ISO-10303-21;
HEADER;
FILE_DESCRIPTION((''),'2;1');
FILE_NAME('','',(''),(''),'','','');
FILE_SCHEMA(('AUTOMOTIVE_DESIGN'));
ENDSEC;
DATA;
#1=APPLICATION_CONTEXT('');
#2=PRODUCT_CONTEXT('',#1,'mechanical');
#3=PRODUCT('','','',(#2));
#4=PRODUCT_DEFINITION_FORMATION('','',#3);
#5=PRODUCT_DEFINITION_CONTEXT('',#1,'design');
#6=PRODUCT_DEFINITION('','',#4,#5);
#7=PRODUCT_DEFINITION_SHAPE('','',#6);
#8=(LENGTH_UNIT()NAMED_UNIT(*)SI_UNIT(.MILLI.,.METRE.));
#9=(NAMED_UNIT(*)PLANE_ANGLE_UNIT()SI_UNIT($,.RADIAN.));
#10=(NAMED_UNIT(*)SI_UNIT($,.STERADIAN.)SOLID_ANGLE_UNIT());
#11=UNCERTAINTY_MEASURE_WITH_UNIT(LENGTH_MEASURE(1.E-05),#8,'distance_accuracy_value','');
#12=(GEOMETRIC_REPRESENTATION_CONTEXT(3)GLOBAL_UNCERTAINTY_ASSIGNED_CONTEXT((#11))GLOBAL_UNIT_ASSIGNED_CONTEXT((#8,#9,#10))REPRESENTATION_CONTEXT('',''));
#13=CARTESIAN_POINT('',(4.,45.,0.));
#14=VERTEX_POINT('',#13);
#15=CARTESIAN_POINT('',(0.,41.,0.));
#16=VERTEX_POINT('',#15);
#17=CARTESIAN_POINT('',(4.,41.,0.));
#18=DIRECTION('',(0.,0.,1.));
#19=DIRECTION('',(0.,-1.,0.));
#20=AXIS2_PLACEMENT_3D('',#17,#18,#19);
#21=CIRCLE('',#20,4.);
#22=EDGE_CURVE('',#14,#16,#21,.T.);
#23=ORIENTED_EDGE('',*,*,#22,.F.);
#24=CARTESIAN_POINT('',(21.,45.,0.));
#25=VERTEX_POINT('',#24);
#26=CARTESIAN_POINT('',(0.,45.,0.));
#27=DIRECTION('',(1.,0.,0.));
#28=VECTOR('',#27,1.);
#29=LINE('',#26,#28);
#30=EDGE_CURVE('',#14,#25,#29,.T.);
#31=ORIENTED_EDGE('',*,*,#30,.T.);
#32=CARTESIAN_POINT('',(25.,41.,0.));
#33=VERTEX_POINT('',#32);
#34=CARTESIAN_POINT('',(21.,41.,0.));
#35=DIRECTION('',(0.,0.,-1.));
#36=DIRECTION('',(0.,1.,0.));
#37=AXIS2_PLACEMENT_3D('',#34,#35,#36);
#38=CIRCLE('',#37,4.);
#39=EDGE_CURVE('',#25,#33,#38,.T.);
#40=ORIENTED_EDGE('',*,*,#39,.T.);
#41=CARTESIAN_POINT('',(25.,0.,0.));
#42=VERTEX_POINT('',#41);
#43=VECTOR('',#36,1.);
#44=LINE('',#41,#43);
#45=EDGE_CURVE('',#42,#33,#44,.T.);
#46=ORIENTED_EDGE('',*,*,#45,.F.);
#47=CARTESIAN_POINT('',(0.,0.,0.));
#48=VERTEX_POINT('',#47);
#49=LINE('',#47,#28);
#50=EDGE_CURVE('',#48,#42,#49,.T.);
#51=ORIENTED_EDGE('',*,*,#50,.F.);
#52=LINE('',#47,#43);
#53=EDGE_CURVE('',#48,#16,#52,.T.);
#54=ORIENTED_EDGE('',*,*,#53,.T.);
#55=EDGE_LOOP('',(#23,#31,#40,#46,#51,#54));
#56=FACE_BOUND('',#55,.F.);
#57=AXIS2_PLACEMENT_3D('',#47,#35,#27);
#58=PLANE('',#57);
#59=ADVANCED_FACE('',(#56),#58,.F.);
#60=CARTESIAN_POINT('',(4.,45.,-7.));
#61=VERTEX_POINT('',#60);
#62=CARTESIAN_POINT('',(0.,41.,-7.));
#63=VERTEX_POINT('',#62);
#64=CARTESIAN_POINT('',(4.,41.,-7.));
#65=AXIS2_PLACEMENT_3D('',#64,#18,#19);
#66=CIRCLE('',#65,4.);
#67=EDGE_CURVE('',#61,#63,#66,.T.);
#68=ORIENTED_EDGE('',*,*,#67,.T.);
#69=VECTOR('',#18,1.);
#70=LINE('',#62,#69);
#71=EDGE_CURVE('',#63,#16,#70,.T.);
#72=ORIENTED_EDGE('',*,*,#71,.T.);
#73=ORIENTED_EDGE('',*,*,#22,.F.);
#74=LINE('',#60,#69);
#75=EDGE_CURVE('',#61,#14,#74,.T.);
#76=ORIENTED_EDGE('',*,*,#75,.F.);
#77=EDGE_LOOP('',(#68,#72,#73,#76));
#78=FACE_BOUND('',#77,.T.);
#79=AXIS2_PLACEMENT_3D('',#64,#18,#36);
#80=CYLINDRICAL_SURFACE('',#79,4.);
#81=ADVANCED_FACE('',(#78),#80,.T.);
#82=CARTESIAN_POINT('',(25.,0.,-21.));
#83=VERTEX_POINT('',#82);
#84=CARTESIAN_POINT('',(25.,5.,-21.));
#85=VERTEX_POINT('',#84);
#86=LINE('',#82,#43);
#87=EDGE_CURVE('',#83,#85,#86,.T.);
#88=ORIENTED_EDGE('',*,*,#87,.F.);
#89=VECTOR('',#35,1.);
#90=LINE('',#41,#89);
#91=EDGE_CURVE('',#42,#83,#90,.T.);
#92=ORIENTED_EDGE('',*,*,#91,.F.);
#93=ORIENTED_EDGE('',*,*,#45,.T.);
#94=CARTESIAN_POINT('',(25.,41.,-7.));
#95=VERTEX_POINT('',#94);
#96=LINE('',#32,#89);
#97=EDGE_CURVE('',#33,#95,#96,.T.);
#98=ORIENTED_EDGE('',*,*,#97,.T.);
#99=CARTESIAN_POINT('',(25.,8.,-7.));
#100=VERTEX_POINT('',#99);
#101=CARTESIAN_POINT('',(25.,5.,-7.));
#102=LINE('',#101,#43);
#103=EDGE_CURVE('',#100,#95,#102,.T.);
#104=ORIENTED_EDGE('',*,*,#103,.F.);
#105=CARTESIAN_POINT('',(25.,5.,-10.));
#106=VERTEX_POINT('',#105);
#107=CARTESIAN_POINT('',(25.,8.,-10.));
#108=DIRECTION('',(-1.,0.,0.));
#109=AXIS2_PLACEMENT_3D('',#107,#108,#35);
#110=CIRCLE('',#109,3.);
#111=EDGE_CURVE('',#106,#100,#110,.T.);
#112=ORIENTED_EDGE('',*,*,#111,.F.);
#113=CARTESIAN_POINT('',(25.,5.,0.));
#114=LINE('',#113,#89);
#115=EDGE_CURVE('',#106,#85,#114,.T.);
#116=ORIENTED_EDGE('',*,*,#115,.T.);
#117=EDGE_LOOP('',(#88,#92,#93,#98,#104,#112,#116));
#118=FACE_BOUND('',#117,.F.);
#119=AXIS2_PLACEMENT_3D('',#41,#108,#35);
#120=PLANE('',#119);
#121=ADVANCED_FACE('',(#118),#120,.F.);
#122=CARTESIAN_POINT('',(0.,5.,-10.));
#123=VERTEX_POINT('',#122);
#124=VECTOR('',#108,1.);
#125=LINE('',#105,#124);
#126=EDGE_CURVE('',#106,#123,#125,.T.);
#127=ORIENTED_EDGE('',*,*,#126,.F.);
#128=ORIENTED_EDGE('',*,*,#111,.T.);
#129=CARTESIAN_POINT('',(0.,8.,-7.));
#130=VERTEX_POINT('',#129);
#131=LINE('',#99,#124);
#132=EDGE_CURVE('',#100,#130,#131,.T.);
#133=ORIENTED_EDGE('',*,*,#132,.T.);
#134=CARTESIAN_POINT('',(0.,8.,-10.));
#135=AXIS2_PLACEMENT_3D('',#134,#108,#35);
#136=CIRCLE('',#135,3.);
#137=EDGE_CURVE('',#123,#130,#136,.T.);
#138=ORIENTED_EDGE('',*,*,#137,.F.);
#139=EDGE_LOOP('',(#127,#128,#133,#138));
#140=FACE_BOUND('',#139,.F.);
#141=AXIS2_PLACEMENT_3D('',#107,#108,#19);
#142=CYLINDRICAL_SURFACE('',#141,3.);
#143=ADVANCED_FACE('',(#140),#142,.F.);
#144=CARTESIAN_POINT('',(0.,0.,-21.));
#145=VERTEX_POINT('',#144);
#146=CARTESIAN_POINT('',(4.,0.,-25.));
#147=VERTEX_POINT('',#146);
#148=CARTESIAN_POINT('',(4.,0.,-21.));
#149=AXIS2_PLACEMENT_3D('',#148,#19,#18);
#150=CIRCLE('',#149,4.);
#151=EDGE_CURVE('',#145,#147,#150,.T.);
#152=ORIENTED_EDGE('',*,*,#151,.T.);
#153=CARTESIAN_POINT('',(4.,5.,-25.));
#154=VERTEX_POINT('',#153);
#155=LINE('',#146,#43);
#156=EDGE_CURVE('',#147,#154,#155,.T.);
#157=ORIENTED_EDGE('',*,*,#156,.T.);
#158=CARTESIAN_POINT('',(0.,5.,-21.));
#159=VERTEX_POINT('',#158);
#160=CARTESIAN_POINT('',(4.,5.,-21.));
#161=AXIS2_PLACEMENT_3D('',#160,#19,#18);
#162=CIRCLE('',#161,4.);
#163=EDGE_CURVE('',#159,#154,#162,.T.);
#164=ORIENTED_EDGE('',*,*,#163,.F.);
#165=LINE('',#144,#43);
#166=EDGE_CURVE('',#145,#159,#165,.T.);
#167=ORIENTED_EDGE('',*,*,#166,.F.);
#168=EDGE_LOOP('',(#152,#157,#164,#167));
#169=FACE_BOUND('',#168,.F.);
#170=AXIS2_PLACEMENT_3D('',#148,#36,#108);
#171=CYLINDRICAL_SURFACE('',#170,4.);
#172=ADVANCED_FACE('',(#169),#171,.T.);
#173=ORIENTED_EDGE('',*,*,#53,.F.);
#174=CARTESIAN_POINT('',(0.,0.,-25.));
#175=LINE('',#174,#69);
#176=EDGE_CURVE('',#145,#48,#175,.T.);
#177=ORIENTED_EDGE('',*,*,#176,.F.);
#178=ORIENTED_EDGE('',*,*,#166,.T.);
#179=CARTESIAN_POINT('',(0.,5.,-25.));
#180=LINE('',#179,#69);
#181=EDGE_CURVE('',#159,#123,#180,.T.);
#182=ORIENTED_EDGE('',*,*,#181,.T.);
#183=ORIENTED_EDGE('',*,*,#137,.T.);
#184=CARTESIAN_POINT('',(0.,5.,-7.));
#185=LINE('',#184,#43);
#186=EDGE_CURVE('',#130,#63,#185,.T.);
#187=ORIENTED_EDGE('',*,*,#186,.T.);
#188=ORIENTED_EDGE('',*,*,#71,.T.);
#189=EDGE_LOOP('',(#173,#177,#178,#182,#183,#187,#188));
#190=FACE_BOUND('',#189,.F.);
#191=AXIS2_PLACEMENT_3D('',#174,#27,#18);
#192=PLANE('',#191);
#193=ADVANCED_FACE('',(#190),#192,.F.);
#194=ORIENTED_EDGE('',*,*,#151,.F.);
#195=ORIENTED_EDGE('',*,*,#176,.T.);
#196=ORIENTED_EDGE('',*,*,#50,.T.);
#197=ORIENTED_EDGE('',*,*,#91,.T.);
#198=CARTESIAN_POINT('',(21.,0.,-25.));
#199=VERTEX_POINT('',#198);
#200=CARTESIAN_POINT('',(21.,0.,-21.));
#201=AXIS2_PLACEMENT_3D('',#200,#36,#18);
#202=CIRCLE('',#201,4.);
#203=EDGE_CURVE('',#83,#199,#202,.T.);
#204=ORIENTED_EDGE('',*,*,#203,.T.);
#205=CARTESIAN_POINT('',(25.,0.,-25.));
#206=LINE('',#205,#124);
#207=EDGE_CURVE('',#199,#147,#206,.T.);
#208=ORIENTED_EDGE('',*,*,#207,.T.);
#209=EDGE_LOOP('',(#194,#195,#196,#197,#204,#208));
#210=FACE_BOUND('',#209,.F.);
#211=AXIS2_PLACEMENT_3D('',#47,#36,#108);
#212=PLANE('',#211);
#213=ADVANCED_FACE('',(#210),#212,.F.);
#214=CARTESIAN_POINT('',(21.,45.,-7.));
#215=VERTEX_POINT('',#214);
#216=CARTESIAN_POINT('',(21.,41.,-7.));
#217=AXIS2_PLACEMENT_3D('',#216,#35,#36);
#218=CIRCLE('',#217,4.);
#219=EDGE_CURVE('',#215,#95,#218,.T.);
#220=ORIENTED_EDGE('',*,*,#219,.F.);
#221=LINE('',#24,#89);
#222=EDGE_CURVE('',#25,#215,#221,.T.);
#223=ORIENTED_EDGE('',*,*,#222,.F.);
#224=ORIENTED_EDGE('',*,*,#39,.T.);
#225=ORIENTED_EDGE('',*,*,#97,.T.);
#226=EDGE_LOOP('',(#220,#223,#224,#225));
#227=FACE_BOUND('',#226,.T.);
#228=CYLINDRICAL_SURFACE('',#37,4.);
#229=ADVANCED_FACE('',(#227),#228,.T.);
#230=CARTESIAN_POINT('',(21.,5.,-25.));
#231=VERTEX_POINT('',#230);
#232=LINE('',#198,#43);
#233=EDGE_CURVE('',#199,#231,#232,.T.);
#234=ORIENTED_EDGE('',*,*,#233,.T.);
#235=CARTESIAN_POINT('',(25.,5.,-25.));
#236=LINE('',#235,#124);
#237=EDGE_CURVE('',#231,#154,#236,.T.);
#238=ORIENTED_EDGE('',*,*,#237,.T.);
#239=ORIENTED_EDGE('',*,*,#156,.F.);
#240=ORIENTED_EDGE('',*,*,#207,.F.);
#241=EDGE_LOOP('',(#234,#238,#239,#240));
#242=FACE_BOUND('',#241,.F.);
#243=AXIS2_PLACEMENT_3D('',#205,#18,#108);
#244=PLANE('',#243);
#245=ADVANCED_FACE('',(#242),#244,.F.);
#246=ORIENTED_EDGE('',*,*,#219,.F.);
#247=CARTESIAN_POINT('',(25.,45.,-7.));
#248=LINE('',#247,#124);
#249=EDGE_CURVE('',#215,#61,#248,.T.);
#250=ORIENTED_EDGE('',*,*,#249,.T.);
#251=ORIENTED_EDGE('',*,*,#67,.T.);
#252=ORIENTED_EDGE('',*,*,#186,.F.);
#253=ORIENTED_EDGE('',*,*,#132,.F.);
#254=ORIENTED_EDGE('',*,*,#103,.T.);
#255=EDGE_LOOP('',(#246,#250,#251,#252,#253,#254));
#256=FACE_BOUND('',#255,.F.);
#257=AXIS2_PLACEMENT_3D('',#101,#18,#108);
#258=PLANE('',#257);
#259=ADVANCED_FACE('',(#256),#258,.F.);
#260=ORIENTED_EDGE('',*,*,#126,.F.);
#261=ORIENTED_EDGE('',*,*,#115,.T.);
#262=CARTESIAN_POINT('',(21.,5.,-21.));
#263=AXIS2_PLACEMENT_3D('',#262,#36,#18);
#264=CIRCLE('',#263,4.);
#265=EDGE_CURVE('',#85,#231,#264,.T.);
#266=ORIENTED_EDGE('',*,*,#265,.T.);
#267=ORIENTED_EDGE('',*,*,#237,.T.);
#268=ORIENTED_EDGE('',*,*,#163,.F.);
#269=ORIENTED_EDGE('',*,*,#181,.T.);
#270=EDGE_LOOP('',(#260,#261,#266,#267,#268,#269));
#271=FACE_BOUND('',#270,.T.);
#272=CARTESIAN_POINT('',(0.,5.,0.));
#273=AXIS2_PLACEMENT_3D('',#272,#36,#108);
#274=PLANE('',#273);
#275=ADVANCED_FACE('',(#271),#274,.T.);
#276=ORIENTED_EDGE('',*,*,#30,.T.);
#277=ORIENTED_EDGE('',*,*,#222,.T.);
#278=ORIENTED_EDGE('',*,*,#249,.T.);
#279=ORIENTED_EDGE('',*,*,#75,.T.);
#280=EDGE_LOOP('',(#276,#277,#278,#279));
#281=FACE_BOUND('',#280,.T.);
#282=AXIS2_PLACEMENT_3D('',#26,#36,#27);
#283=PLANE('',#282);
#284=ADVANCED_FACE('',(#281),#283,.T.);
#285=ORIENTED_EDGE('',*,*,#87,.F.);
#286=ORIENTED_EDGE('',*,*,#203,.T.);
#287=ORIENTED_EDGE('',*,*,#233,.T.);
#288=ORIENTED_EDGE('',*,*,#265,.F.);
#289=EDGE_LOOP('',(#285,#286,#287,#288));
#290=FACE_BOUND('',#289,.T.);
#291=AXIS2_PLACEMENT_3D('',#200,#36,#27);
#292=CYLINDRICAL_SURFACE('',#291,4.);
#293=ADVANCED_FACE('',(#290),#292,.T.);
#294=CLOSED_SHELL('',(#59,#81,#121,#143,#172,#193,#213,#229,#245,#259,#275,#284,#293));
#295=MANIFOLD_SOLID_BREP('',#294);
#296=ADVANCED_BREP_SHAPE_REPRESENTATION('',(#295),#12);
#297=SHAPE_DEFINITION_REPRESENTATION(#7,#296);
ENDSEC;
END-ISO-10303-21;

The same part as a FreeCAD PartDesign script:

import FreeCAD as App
import Part
import Sketcher
Q = App.Units.Quantity


def edges_at(feature, points):
    """Names of the edges that pass closest to the given points."""
    edges = feature.Shape.Edges
    near = lambda p: min(range(len(edges)), key=lambda i: edges[i].distToShape(Part.Vertex(*p))[0])
    return sorted({f"Edge{near(p) + 1}" for p in points})


def add_polygon(sketch, points):
    """Adds a closed chain of lines whose ends are joined by coincident constraints."""
    first, n = sketch.GeometryCount, len(points)
    for a, b in zip(points, points[1:] + points[:1]):
        sketch.addGeometry(Part.LineSegment(App.Vector(*a, 0), App.Vector(*b, 0)), False)
    for i in range(n):
        sketch.addConstraint(Sketcher.Constraint("Coincident", first + i, 2, first + (i + 1) % n, 1))

doc = App.newDocument("Part")
params = doc.addObject("Spreadsheet::Sheet", "Params")
for row, (alias, value) in enumerate([
    ("sketch1_width", "25 mm"),
    ("pad1_length", "5 mm"),
    ("sketch2_height", "7 mm"),
    ("sketch2_width", "25 mm"),
    ("pad2_length", "40 mm"),
    ("fillet_radius", "3 mm"),
    ("fillet2_radius", "4 mm"),
    ("fillet3_radius", "4 mm"),
    ("fillet4_radius", "4 mm"),
], start=1):
    params.set(f"A{row}", alias)
    params.set(f"B{row}", "=" + value)
    params.setAlias(f"B{row}", alias)

body = doc.addObject("PartDesign::Body", "Body")

# Sketch on XZ plane
sketch1 = body.newObject("Sketcher::SketchObject", "Sketch")
sketch1.AttachmentSupport = (doc.getObject("XZ_Plane"), [""])
sketch1.MapMode = "FlatFace"
add_polygon(sketch1, [(0, -25), (0, 0), (25, 0), (25, -25)])  # lines 0-3
sketch1.addConstraint(Sketcher.Constraint("Vertical", 0))
sketch1.addConstraint(Sketcher.Constraint("Horizontal", 1))
sketch1.addConstraint(Sketcher.Constraint("Vertical", 2))
sketch1.addConstraint(Sketcher.Constraint("Horizontal", 3))
sketch1.addConstraint(Sketcher.Constraint("Coincident", 0, 2, -1, 1))
sketch1.addConstraint(Sketcher.Constraint("Equal", 3, 0))
sketch1.addConstraint(Sketcher.Constraint("DistanceX", 1, 1, 1, 2, Q("25 mm")))
sketch1.setExpression("Constraints[10]", "Params.sketch1_width")
pad1 = body.newObject("PartDesign::Pad", "Pad")
pad1.Profile = sketch1
pad1.setExpression("Length", "Params.pad1_length")
pad1.Reversed = True

# Sketch on XZ plane
sketch2 = body.newObject("Sketcher::SketchObject", "Sketch001")
sketch2.AttachmentSupport = (doc.getObject("XZ_Plane"), [""])
sketch2.MapMode = "FlatFace"
sketch2.AttachmentOffset = App.Placement(App.Vector(0, 0, -5), App.Rotation())
add_polygon(sketch2, [(0, 0), (25, 0), (25, -7), (0, -7)])  # lines 0-3
sketch2.addConstraint(Sketcher.Constraint("Horizontal", 0))
sketch2.addConstraint(Sketcher.Constraint("Vertical", 1))
sketch2.addConstraint(Sketcher.Constraint("Horizontal", 2))
sketch2.addConstraint(Sketcher.Constraint("Vertical", 3))
sketch2.addConstraint(Sketcher.Constraint("Coincident", 3, 2, -1, 1))
sketch2.addConstraint(Sketcher.Constraint("DistanceY", 1, 2, 1, 1, Q("7 mm")))
sketch2.addConstraint(Sketcher.Constraint("DistanceX", 0, 1, 0, 2, Q("25 mm")))
sketch2.setExpression("Constraints[9]", "Params.sketch2_height")
sketch2.setExpression("Constraints[10]", "Params.sketch2_width")
pad2 = body.newObject("PartDesign::Pad", "Pad001")
pad2.Profile = sketch2
pad2.setExpression("Length", "Params.pad2_length")
pad2.Reversed = True
doc.recompute()

fillet = body.newObject("PartDesign::Fillet", "Fillet")
fillet.Base = (pad2, edges_at(pad2, [(12.5, 5, -7)]))
fillet.setExpression("Radius", "Params.fillet_radius")
doc.recompute()

fillet2 = body.newObject("PartDesign::Fillet", "Fillet001")
fillet2.Base = (fillet, edges_at(fillet, [(25, 45, -3.5)]))
fillet2.setExpression("Radius", "Params.fillet2_radius")
doc.recompute()

fillet3 = body.newObject("PartDesign::Fillet", "Fillet002")
fillet3.Base = (fillet2, edges_at(fillet2, [(0, 45, -3.5)]))
fillet3.setExpression("Radius", "Params.fillet3_radius")
doc.recompute()

fillet4 = body.newObject("PartDesign::Fillet", "Fillet003")
fillet4.Base = (fillet3, edges_at(fillet3, [(25, 2.5, -25), (0, 2.5, -25)]))
fillet4.setExpression("Radius", "Params.fillet4_radius")

doc.recompute()
